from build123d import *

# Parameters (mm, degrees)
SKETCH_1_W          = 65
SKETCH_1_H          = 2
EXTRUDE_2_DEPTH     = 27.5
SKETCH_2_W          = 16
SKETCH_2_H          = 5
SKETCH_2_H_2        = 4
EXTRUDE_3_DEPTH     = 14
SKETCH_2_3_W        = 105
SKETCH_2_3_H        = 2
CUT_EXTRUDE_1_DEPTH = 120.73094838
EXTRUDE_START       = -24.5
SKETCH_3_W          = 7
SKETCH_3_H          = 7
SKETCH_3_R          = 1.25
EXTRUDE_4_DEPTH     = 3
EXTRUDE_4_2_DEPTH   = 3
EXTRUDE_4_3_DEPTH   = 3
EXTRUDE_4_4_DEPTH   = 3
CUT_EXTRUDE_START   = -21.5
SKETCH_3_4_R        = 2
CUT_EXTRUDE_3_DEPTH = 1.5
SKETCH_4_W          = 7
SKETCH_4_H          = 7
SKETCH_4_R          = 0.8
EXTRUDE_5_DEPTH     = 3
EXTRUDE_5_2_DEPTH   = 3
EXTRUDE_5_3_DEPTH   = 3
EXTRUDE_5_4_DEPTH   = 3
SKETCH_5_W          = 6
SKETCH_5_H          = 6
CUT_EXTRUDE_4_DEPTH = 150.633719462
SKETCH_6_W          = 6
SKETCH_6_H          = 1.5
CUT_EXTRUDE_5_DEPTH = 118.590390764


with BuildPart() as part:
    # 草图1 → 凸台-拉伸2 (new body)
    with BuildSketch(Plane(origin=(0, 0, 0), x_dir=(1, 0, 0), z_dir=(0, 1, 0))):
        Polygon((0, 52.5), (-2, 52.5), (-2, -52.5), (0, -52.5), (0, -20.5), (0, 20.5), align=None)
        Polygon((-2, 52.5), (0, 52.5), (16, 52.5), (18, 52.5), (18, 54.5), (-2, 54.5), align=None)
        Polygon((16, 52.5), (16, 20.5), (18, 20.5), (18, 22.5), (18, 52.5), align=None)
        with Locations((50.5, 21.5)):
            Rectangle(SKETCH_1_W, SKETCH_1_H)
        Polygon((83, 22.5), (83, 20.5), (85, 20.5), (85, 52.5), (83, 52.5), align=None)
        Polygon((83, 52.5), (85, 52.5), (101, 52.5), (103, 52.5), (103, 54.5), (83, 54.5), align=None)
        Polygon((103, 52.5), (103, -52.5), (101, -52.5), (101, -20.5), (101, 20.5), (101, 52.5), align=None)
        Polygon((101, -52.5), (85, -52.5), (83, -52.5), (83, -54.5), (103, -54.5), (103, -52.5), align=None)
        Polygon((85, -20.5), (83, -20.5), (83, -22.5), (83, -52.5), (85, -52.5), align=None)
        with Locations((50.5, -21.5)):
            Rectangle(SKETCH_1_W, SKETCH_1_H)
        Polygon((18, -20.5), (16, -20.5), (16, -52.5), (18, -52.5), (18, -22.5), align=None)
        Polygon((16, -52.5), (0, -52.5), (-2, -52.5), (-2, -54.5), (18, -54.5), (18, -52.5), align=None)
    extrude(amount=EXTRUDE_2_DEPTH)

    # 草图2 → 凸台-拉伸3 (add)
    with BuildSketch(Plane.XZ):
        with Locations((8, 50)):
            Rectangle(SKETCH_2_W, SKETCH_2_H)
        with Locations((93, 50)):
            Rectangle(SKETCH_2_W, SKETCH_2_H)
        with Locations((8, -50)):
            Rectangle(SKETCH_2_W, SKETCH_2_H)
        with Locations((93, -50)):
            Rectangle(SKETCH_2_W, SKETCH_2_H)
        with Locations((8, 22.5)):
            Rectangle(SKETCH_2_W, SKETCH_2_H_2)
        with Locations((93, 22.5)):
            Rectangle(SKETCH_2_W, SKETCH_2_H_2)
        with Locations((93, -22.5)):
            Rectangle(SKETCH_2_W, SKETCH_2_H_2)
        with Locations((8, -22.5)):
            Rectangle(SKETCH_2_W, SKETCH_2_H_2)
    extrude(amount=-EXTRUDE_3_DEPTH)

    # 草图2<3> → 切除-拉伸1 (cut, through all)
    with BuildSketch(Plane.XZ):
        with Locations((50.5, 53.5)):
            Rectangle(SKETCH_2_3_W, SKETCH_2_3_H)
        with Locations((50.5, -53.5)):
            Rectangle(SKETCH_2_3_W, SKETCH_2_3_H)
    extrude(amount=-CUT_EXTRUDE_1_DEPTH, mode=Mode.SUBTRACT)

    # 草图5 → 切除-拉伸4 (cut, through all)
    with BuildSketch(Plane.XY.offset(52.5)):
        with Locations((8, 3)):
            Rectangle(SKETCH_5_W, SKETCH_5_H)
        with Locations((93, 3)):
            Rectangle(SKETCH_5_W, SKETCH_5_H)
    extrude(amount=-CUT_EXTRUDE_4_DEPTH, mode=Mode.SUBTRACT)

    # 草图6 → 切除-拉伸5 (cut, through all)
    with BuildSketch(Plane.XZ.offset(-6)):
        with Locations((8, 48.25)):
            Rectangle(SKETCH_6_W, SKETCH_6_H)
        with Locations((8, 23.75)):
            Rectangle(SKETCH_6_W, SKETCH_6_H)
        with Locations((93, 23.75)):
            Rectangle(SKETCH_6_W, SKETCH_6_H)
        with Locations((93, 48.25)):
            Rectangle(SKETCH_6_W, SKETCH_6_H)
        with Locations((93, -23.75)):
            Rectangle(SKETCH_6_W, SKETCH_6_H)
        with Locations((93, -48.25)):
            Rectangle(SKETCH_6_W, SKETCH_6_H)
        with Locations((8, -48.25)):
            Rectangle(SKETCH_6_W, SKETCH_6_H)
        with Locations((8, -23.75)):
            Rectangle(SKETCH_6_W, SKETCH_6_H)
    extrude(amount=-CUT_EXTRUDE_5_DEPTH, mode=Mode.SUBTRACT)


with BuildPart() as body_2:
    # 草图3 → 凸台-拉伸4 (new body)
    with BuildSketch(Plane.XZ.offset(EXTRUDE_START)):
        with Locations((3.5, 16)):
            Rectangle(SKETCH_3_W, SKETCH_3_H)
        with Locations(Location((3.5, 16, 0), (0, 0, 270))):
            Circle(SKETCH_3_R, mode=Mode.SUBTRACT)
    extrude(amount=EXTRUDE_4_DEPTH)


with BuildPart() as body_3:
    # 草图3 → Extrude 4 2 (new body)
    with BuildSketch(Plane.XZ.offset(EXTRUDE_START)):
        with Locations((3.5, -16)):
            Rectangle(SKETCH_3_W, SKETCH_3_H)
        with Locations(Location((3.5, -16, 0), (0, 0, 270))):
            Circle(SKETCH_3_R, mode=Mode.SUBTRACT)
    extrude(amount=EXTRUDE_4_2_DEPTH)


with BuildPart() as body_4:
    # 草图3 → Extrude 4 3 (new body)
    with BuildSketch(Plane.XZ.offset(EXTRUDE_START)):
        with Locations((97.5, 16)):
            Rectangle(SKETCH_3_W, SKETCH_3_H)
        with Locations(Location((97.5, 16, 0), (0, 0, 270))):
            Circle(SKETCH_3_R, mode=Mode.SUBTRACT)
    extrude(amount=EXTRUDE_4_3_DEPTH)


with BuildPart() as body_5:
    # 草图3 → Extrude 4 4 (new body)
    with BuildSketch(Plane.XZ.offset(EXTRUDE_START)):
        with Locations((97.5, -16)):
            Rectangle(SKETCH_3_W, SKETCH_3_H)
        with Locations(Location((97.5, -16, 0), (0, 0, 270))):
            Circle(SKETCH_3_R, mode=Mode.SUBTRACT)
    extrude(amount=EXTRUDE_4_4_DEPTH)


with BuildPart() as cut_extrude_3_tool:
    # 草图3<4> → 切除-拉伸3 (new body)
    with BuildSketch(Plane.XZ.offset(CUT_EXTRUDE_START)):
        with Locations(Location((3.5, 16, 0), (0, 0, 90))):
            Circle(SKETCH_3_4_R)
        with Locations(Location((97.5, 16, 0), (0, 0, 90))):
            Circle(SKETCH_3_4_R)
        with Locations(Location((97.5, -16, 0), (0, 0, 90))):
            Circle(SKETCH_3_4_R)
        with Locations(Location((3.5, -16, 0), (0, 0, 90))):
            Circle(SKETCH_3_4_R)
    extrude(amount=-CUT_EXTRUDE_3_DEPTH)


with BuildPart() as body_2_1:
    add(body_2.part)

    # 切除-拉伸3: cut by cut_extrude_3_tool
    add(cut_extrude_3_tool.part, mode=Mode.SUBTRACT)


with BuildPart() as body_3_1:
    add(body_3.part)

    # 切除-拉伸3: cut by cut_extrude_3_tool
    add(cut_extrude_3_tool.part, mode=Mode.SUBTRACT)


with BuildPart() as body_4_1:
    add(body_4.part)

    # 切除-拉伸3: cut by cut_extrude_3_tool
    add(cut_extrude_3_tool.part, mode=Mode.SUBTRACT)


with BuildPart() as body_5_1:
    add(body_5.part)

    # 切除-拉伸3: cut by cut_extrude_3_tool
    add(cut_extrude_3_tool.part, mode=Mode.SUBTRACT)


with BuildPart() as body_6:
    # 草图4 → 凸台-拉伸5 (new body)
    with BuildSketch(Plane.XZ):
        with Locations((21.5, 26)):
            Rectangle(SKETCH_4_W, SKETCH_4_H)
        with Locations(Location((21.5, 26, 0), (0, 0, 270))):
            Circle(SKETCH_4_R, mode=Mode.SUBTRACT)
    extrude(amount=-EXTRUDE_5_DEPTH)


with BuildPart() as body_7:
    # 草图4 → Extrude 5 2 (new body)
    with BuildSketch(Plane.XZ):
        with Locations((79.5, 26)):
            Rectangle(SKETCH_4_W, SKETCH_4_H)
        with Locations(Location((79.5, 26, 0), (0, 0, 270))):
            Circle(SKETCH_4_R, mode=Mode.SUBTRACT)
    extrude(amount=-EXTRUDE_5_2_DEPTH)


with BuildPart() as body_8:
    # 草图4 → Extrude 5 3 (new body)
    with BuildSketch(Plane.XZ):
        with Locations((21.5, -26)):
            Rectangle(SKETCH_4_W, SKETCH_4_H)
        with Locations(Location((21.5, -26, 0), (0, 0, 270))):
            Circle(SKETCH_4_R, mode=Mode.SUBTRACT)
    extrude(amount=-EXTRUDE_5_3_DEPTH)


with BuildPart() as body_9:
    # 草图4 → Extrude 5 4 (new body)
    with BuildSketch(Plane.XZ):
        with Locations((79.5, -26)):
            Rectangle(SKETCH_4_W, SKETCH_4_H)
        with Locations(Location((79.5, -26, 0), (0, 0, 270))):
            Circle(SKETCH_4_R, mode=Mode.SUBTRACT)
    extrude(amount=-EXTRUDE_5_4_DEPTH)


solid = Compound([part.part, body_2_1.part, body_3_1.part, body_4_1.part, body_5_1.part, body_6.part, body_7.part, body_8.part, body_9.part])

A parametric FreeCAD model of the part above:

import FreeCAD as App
import Part
import Sketcher


def add_polygon(sketch, points):
    """Adds a closed chain of lines whose ends are joined by coincident constraints."""
    first, n = sketch.GeometryCount, len(points)
    for a, b in zip(points, points[1:] + points[:1]):
        sketch.addGeometry(Part.LineSegment(App.Vector(*a, 0), App.Vector(*b, 0)), False)
    for i in range(n):
        sketch.addConstraint(Sketcher.Constraint("Coincident", first + i, 2, first + (i + 1) % n, 1))

doc = App.newDocument("Part")
body = doc.addObject("PartDesign::Body", "Body")

# Sketch on XZ plane
sketch1 = doc.addObject("Sketcher::SketchObject", "Sketch")
body.addObject(sketch1)
sketch1.AttachmentSupport = (doc.XZ_Plane, [""])
sketch1.MapMode = "FlatFace"
add_polygon(sketch1, [(18, 22), (83, 22), (83, 54), (103, 54), (103, -54), (83, -54), (83, -22), (18, -22), (18, -54), (-2, -54), (-2, 54), (18, 54)])  # lines 0-11
add_polygon(sketch1, [(0, 52), (0, -52), (16, -52), (16, -20), (85, -20), (85, -52), (101, -52), (101, 52), (85, 52), (85, 20), (16, 20), (16, 52)])  # lines 12-23
sketch1.addConstraint([
    Sketcher.Constraint("Horizontal", 0),
    Sketcher.Constraint("Vertical", 1),
    Sketcher.Constraint("Horizontal", 2),
    Sketcher.Constraint("Vertical", 3),
    Sketcher.Constraint("Horizontal", 4),
    Sketcher.Constraint("Vertical", 5),
    Sketcher.Constraint("Horizontal", 6),
    Sketcher.Constraint("Vertical", 7),
    Sketcher.Constraint("Horizontal", 8),
    Sketcher.Constraint("Vertical", 9),
    Sketcher.Constraint("Horizontal", 10),
    Sketcher.Constraint("Vertical", 11),
    Sketcher.Constraint("Vertical", 12),
    Sketcher.Constraint("Horizontal", 13),
    Sketcher.Constraint("Vertical", 14),
    Sketcher.Constraint("Horizontal", 15),
    Sketcher.Constraint("Vertical", 16),
    Sketcher.Constraint("Horizontal", 17),
    Sketcher.Constraint("Vertical", 18),
    Sketcher.Constraint("Horizontal", 19),
    Sketcher.Constraint("Vertical", 20),
    Sketcher.Constraint("Horizontal", 21),
    Sketcher.Constraint("Vertical", 22),
    Sketcher.Constraint("Horizontal", 23),
    Sketcher.Constraint("Symmetric", 12, 2, 23, 2, -1, 1),
    Sketcher.Constraint("Symmetric", 1, 2, 4, 2, -1),
    Sketcher.Constraint("Symmetric", 7, 2, 10, 2, -1),
    Sketcher.Constraint("Symmetric", 16, 2, 19, 2, -1),
    Sketcher.Constraint("Symmetric", 14, 2, 21, 2, -1),
    Sketcher.Constraint("Horizontal", 4, 2, 7, 2),
    Sketcher.Constraint("Horizontal", 13, 2, 16, 2),
    Sketcher.Constraint("Equal", 4, 8),
    Sketcher.Constraint("Equal", 13, 17),
    Sketcher.Constraint("Equal", 1, 5),
    Sketcher.Constraint("Equal", 11, 14),
    Sketcher.Constraint("DistanceX", 0, 1, 0, 2, 65.0),
    Sketcher.Constraint("DistanceX", 2, 1, 2, 2, 20.0),
    Sketcher.Constraint("DistanceX", 13, 1, 13, 2, 16.0),
    Sketcher.Constraint("DistanceX", 15, 1, 15, 2, 69.0),
    Sketcher.Constraint("DistanceY", 1, 1, 1, 2, 32.0),
    Sketcher.Constraint("DistanceY", 3, 2, 3, 1, 109.0),
    Sketcher.Constraint("DistanceY", 12, 2, 12, 1, 105.0),
    Sketcher.Constraint("DistanceX", -1, 1, 0, 2, 83.0),
])
pad1 = doc.addObject("PartDesign::Pad", "Pad")
body.addObject(pad1)
pad1.Profile = sketch1
pad1.Length = 27.5
pad1.Reversed = True

# Sketch on XZ plane
sketch2 = doc.addObject("Sketcher::SketchObject", "Sketch001")
body.addObject(sketch2)
sketch2.AttachmentSupport = (doc.XZ_Plane, [""])
sketch2.MapMode = "FlatFace"
add_polygon(sketch2, [(0, 52.5), (0, 47.5), (16, 47.5), (16, 52.5)])  # lines 0-3
add_polygon(sketch2, [(85, 52.5), (85, 47.5), (101, 47.5), (101, 52.5)])  # lines 4-7
add_polygon(sketch2, [(0, -47.5), (0, -52.5), (16, -52.5), (16, -47.5)])  # lines 8-11
add_polygon(sketch2, [(85, -47.5), (85, -52.5), (101, -52.5), (101, -47.5)])  # lines 12-15
add_polygon(sketch2, [(0, 24.5), (0, 20.5), (16, 20.5), (16, 24.5)])  # lines 16-19
add_polygon(sketch2, [(85, 24.5), (85, 20.5), (101, 20.5), (101, 24.5)])  # lines 20-23
add_polygon(sketch2, [(85, -20.5), (85, -24.5), (101, -24.5), (101, -20.5)])  # lines 24-27
add_polygon(sketch2, [(0, -20.5), (0, -24.5), (16, -24.5), (16, -20.5)])  # lines 28-31
sketch2.addConstraint([
    Sketcher.Constraint("Vertical", 0),
    Sketcher.Constraint("Horizontal", 1),
    Sketcher.Constraint("Vertical", 2),
    Sketcher.Constraint("Horizontal", 3),
    Sketcher.Constraint("Vertical", 4),
    Sketcher.Constraint("Horizontal", 5),
    Sketcher.Constraint("Vertical", 6),
    Sketcher.Constraint("Horizontal", 7),
    Sketcher.Constraint("Vertical", 8),
    Sketcher.Constraint("Horizontal", 9),
    Sketcher.Constraint("Vertical", 10),
    Sketcher.Constraint("Horizontal", 11),
    Sketcher.Constraint("Vertical", 12),
    Sketcher.Constraint("Horizontal", 13),
    Sketcher.Constraint("Vertical", 14),
    Sketcher.Constraint("Horizontal", 15),
    Sketcher.Constraint("Vertical", 16),
    Sketcher.Constraint("Horizontal", 17),
    Sketcher.Constraint("Vertical", 18),
    Sketcher.Constraint("Horizontal", 19),
    Sketcher.Constraint("Vertical", 20),
    Sketcher.Constraint("Horizontal", 21),
    Sketcher.Constraint("Vertical", 22),
    Sketcher.Constraint("Horizontal", 23),
    Sketcher.Constraint("Vertical", 24),
    Sketcher.Constraint("Horizontal", 25),
    Sketcher.Constraint("Vertical", 26),
    Sketcher.Constraint("Horizontal", 27),
    Sketcher.Constraint("Vertical", 28),
    Sketcher.Constraint("Horizontal", 29),
    Sketcher.Constraint("Vertical", 30),
    Sketcher.Constraint("Horizontal", 31),
    Sketcher.Constraint("Symmetric", 3, 2, 8, 2, -1, 1),
    Sketcher.Constraint("Symmetric", 19, 2, 28, 2, -1, 1),
    Sketcher.Constraint("Symmetric", 1, 2, 10, 2, -1),
    Sketcher.Constraint("Symmetric", 7, 2, 12, 2, -1),
    Sketcher.Constraint("Symmetric", 5, 2, 14, 2, -1),
    Sketcher.Constraint("Symmetric", 23, 2, 24, 2, -1),
    Sketcher.Constraint("Symmetric", 21, 2, 26, 2, -1),
    Sketcher.Constraint("Symmetric", 17, 2, 30, 2, -1),
    Sketcher.Constraint("PointOnObject", 0, 2, -2),
    Sketcher.Constraint("PointOnObject", 16, 2, -2),
    Sketcher.Constraint("Horizontal", 1, 2, 4, 2),
    Sketcher.Constraint("Horizontal", 3, 2, 6, 2),
    Sketcher.Constraint("Horizontal", 17, 2, 20, 2),
    Sketcher.Constraint("Horizontal", 19, 2, 22, 2),
    Sketcher.Constraint("Vertical", 10, 2, 17, 2),
    Sketcher.Constraint("Vertical", 15, 2, 20, 2),
    Sketcher.Constraint("Vertical", 14, 2, 21, 2),
    Sketcher.Constraint("Equal", 3, 5),
    Sketcher.Constraint("DistanceX", 1, 1, 1, 2, 16.0),
    Sketcher.Constraint("DistanceY", 0, 2, 0, 1, 5.0),
    Sketcher.Constraint("DistanceY", 16, 2, 16, 1, 4.0),
    Sketcher.Constraint("DistanceX", -1, 1, 4, 2, 85.0),
    Sketcher.Constraint("DistanceY", 8, 2, 0, 2, 100.0),
    Sketcher.Constraint("DistanceY", 16, 2, 0, 2, 27.0),
])
pad2 = doc.addObject("PartDesign::Pad", "Pad001")
body.addObject(pad2)
pad2.Profile = sketch2
pad2.Length = 14
pad2.Reversed = True

# Sketch on XZ plane
sketch3 = doc.addObject("Sketcher::SketchObject", "Sketch002")
body.addObject(sketch3)
sketch3.AttachmentSupport = (doc.XZ_Plane, [""])
sketch3.MapMode = "FlatFace"
add_polygon(sketch3, [(-2, 54.5), (-2, 52.5), (103, 52.5), (103, 54.5)])  # lines 0-3
add_polygon(sketch3, [(-2, -52.5), (-2, -54.5), (103, -54.5), (103, -52.5)])  # lines 4-7
sketch3.addConstraint([
    Sketcher.Constraint("Vertical", 0),
    Sketcher.Constraint("Horizontal", 1),
    Sketcher.Constraint("Vertical", 2),
    Sketcher.Constraint("Horizontal", 3),
    Sketcher.Constraint("Vertical", 4),
    Sketcher.Constraint("Horizontal", 5),
    Sketcher.Constraint("Vertical", 6),
    Sketcher.Constraint("Horizontal", 7),
    Sketcher.Constraint("Symmetric", 3, 2, 4, 2, -1),
    Sketcher.Constraint("Symmetric", 1, 2, 6, 2, -1),
    Sketcher.Constraint("DistanceX", 1, 1, 1, 2, 105.0),
    Sketcher.Constraint("DistanceY", 0, 2, 0, 1, 2.0),
    Sketcher.Constraint("DistanceX", 0, 2, -1, 1, 2.0),
    Sketcher.Constraint("DistanceY", 4, 2, 0, 2, 107.0),
])
pocket1 = doc.addObject("PartDesign::Pocket", "Pocket")
body.addObject(pocket1)
pocket1.Profile = sketch3
pocket1.Type = "ThroughAll"

# Sketch on XY plane
sketch4 = doc.addObject("Sketcher::SketchObject", "Sketch003")
body.addObject(sketch4)
sketch4.AttachmentSupport = (doc.XY_Plane, [""])
sketch4.MapMode = "FlatFace"
sketch4.AttachmentOffset = App.Placement(App.Vector(0, 0, 52.5), App.Rotation())
add_polygon(sketch4, [(5, 6), (5, 0), (11, 0), (11, 6)])  # lines 0-3
add_polygon(sketch4, [(90, 6), (90, 0), (96, 0), (96, 6)])  # lines 4-7
sketch4.addConstraint([
    Sketcher.Constraint("Vertical", 0),
    Sketcher.Constraint("Horizontal", 1),
    Sketcher.Constraint("Vertical", 2),
    Sketcher.Constraint("Horizontal", 3),
    Sketcher.Constraint("Vertical", 4),
    Sketcher.Constraint("Horizontal", 5),
    Sketcher.Constraint("Vertical", 6),
    Sketcher.Constraint("Horizontal", 7),
    Sketcher.Constraint("PointOnObject", 0, 2, -1),
    Sketcher.Constraint("PointOnObject", 4, 2, -1),
    Sketcher.Constraint("Horizontal", 3, 2, 6, 2),
    Sketcher.Constraint("Equal", 3, 5),
    Sketcher.Constraint("Equal", 7, 0),
    Sketcher.Constraint("DistanceX", 1, 1, 1, 2, 6.0),
    Sketcher.Constraint("DistanceX", -1, 1, 0, 2, 5.0),
    Sketcher.Constraint("DistanceX", -1, 1, 4, 2, 90.0),
])
pocket2 = doc.addObject("PartDesign::Pocket", "Pocket001")
body.addObject(pocket2)
pocket2.Profile = sketch4
pocket2.Type = "ThroughAll"

# Sketch on XZ plane
sketch5 = doc.addObject("Sketcher::SketchObject", "Sketch004")
body.addObject(sketch5)
sketch5.AttachmentSupport = (doc.XZ_Plane, [""])
sketch5.MapMode = "FlatFace"
sketch5.AttachmentOffset = App.Placement(App.Vector(0, 0, -6), App.Rotation())
add_polygon(sketch5, [(5, 49), (5, 47.5), (11, 47.5), (11, 49)])  # lines 0-3
add_polygon(sketch5, [(5, 24.5), (5, 23), (11, 23), (11, 24.5)])  # lines 4-7
add_polygon(sketch5, [(90, 24.5), (90, 23), (96, 23), (96, 24.5)])  # lines 8-11
add_polygon(sketch5, [(90, 49), (90, 47.5), (96, 47.5), (96, 49)])  # lines 12-15
add_polygon(sketch5, [(90, -23), (90, -24.5), (96, -24.5), (96, -23)])  # lines 16-19
add_polygon(sketch5, [(90, -47.5), (90, -49), (96, -49), (96, -47.5)])  # lines 20-23
add_polygon(sketch5, [(5, -47.5), (5, -49), (11, -49), (11, -47.5)])  # lines 24-27
add_polygon(sketch5, [(5, -23), (5, -24.5), (11, -24.5), (11, -23)])  # lines 28-31
sketch5.addConstraint([
    Sketcher.Constraint("Vertical", 0),
    Sketcher.Constraint("Horizontal", 1),
    Sketcher.Constraint("Vertical", 2),
    Sketcher.Constraint("Horizontal", 3),
    Sketcher.Constraint("Vertical", 4),
    Sketcher.Constraint("Horizontal", 5),
    Sketcher.Constraint("Vertical", 6),
    Sketcher.Constraint("Horizontal", 7),
    Sketcher.Constraint("Vertical", 8),
    Sketcher.Constraint("Horizontal", 9),
    Sketcher.Constraint("Vertical", 10),
    Sketcher.Constraint("Horizontal", 11),
    Sketcher.Constraint("Vertical", 12),
    Sketcher.Constraint("Horizontal", 13),
    Sketcher.Constraint("Vertical", 14),
    Sketcher.Constraint("Horizontal", 15),
    Sketcher.Constraint("Vertical", 16),
    Sketcher.Constraint("Horizontal", 17),
    Sketcher.Constraint("Vertical", 18),
    Sketcher.Constraint("Horizontal", 19),
    Sketcher.Constraint("Vertical", 20),
    Sketcher.Constraint("Horizontal", 21),
    Sketcher.Constraint("Vertical", 22),
    Sketcher.Constraint("Horizontal", 23),
    Sketcher.Constraint("Vertical", 24),
    Sketcher.Constraint("Horizontal", 25),
    Sketcher.Constraint("Vertical", 26),
    Sketcher.Constraint("Horizontal", 27),
    Sketcher.Constraint("Vertical", 28),
    Sketcher.Constraint("Horizontal", 29),
    Sketcher.Constraint("Vertical", 30),
    Sketcher.Constraint("Horizontal", 31),
    Sketcher.Constraint("Symmetric", 11, 2, 16, 2, -1),
    Sketcher.Constraint("Symmetric", 9, 2, 18, 2, -1),
    Sketcher.Constraint("Symmetric", 15, 2, 20, 2, -1),
    Sketcher.Constraint("Symmetric", 13, 2, 22, 2, -1),
    Sketcher.Constraint("Symmetric", 3, 2, 24, 2, -1),
    Sketcher.Constraint("Symmetric", 1, 2, 26, 2, -1),
    Sketcher.Constraint("Symmetric", 7, 2, 28, 2, -1),
    Sketcher.Constraint("Symmetric", 5, 2, 30, 2, -1),
    Sketcher.Constraint("Horizontal", 5, 2, 8, 2),
    Sketcher.Constraint("Horizontal", 7, 2, 10, 2),
    Sketcher.Constraint("Horizontal", 1, 2, 12, 2),
    Sketcher.Constraint("Horizontal", 3, 2, 14, 2),
    Sketcher.Constraint("Vertical", 3, 2, 4, 2),
    Sketcher.Constraint("Vertical", 2, 2, 5, 2),
    Sketcher.Constraint("Vertical", 11, 2, 12, 2),
    Sketcher.Constraint("Vertical", 10, 2, 13, 2),
    Sketcher.Constraint("Equal", 7, 9),
    Sketcher.Constraint("Equal", 2, 4),
    Sketcher.Constraint("DistanceX", 1, 1, 1, 2, 6.0),
    Sketcher.Constraint("DistanceY", 0, 2, 0, 1, 1.5),
    Sketcher.Constraint("DistanceX", -1, 1, 0, 2, 5.0),
    Sketcher.Constraint("DistanceY", -1, 1, 2, 2, 49.0),
    Sketcher.Constraint("DistanceY", -1, 1, 4, 2, 23.0),
    Sketcher.Constraint("DistanceX", -1, 1, 8, 2, 90.0),
])
pocket3 = doc.addObject("PartDesign::Pocket", "Pocket002")
body.addObject(pocket3)
pocket3.Profile = sketch5
pocket3.Type = "ThroughAll"
body2 = doc.addObject("PartDesign::Body", "Body001")

# Sketch on XZ plane
sketch6 = doc.addObject("Sketcher::SketchObject", "Sketch005")
body2.addObject(sketch6)
sketch6.AttachmentSupport = (doc.getObject("XZ_Plane001"), [""])
sketch6.MapMode = "FlatFace"
sketch6.AttachmentOffset = App.Placement(App.Vector(0, 0, -24.5), App.Rotation())
add_polygon(sketch6, [(0, 19.5), (0, 12.5), (7, 12.5), (7, 19.5)])  # lines 0-3
sketch6.addGeometry(Part.Circle(App.Vector(3.5, 16, 0), App.Vector(0, 0, 1), 1.2), False)  # 4
sketch6.addConstraint([
    Sketcher.Constraint("Vertical", 0),
    Sketcher.Constraint("Horizontal", 1),
    Sketcher.Constraint("Vertical", 2),
    Sketcher.Constraint("Horizontal", 3),
    Sketcher.Constraint("PointOnObject", 0, 2, -2),
    Sketcher.Constraint("Equal", 3, 0),
    Sketcher.Constraint("Diameter", 4, 2.5),
    Sketcher.Constraint("DistanceX", 1, 1, 1, 2, 7.0),
    Sketcher.Constraint("DistanceY", -1, 1, 4, 3, 16.0),
    Sketcher.Constraint("DistanceX", -1, 1, 4, 3, 3.5),
    Sketcher.Constraint("DistanceY", -1, 1, 0, 2, 12.5),
])
pad3 = doc.addObject("PartDesign::Pad", "Pad002")
body2.addObject(pad3)
pad3.Profile = sketch6
pad3.Length = 3
body3 = doc.addObject("PartDesign::Body", "Body002")

# Sketch on XZ plane
sketch7 = doc.addObject("Sketcher::SketchObject", "Sketch006")
body3.addObject(sketch7)
sketch7.AttachmentSupport = (doc.getObject("XZ_Plane002"), [""])
sketch7.MapMode = "FlatFace"
sketch7.AttachmentOffset = App.Placement(App.Vector(0, 0, -24.5), App.Rotation())
add_polygon(sketch7, [(0, -12.5), (0, -19.5), (7, -19.5), (7, -12.5)])  # lines 0-3
sketch7.addGeometry(Part.Circle(App.Vector(3.5, -16, 0), App.Vector(0, 0, 1), 1.2), False)  # 4
sketch7.addConstraint([
    Sketcher.Constraint("Vertical", 0),
    Sketcher.Constraint("Horizontal", 1),
    Sketcher.Constraint("Vertical", 2),
    Sketcher.Constraint("Horizontal", 3),
    Sketcher.Constraint("PointOnObject", 0, 2, -2),
    Sketcher.Constraint("Equal", 3, 0),
    Sketcher.Constraint("Diameter", 4, 2.5),
    Sketcher.Constraint("DistanceX", 1, 1, 1, 2, 7.0),
    Sketcher.Constraint("DistanceY", 4, 3, -1, 1, 16.0),
    Sketcher.Constraint("DistanceX", -1, 1, 4, 3, 3.5),
    Sketcher.Constraint("DistanceY", 0, 2, -1, 1, 19.5),
])
pad4 = doc.addObject("PartDesign::Pad", "Pad003")
body3.addObject(pad4)
pad4.Profile = sketch7
pad4.Length = 3
body4 = doc.addObject("PartDesign::Body", "Body003")

# Sketch on XZ plane
sketch8 = doc.addObject("Sketcher::SketchObject", "Sketch007")
body4.addObject(sketch8)
sketch8.AttachmentSupport = (doc.getObject("XZ_Plane003"), [""])
sketch8.MapMode = "FlatFace"
sketch8.AttachmentOffset = App.Placement(App.Vector(0, 0, -24.5), App.Rotation())
add_polygon(sketch8, [(94, 19.5), (94, 12.5), (101, 12.5), (101, 19.5)])  # lines 0-3
sketch8.addGeometry(Part.Circle(App.Vector(97.5, 16, 0), App.Vector(0, 0, 1), 1.2), False)  # 4
sketch8.addConstraint([
    Sketcher.Constraint("Vertical", 0),
    Sketcher.Constraint("Horizontal", 1),
    Sketcher.Constraint("Vertical", 2),
    Sketcher.Constraint("Horizontal", 3),
    Sketcher.Constraint("Equal", 3, 0),
    Sketcher.Constraint("Diameter", 4, 2.5),
    Sketcher.Constraint("DistanceX", 1, 1, 1, 2, 7.0),
    Sketcher.Constraint("DistanceY", -1, 1, 4, 3, 16.0),
    Sketcher.Constraint("DistanceX", -1, 1, 0, 2, 94.0),
    Sketcher.Constraint("DistanceX", -1, 1, 4, 3, 97.5),
    Sketcher.Constraint("DistanceY", -1, 1, 0, 2, 12.5),
])
pad5 = doc.addObject("PartDesign::Pad", "Pad004")
body4.addObject(pad5)
pad5.Profile = sketch8
pad5.Length = 3
body5 = doc.addObject("PartDesign::Body", "Body004")

# Sketch on XZ plane
sketch9 = doc.addObject("Sketcher::SketchObject", "Sketch008")
body5.addObject(sketch9)
sketch9.AttachmentSupport = (doc.getObject("XZ_Plane004"), [""])
sketch9.MapMode = "FlatFace"
sketch9.AttachmentOffset = App.Placement(App.Vector(0, 0, -24.5), App.Rotation())
add_polygon(sketch9, [(94, -12.5), (94, -19.5), (101, -19.5), (101, -12.5)])  # lines 0-3
sketch9.addGeometry(Part.Circle(App.Vector(97.5, -16, 0), App.Vector(0, 0, 1), 1.2), False)  # 4
sketch9.addConstraint([
    Sketcher.Constraint("Vertical", 0),
    Sketcher.Constraint("Horizontal", 1),
    Sketcher.Constraint("Vertical", 2),
    Sketcher.Constraint("Horizontal", 3),
    Sketcher.Constraint("Equal", 3, 0),
    Sketcher.Constraint("Diameter", 4, 2.5),
    Sketcher.Constraint("DistanceX", 1, 1, 1, 2, 7.0),
    Sketcher.Constraint("DistanceY", 4, 3, -1, 1, 16.0),
    Sketcher.Constraint("DistanceX", -1, 1, 0, 2, 94.0),
    Sketcher.Constraint("DistanceX", -1, 1, 4, 3, 97.5),
    Sketcher.Constraint("DistanceY", 0, 2, -1, 1, 19.5),
])
pad6 = doc.addObject("PartDesign::Pad", "Pad005")
body5.addObject(pad6)
pad6.Profile = sketch9
pad6.Length = 3
body6 = doc.addObject("PartDesign::Body", "Body005")
body6.AllowCompound = True

# Sketch on XZ plane
sketch10 = doc.addObject("Sketcher::SketchObject", "Sketch009")
body6.addObject(sketch10)
sketch10.AttachmentSupport = (doc.getObject("XZ_Plane005"), [""])
sketch10.MapMode = "FlatFace"
sketch10.AttachmentOffset = App.Placement(App.Vector(0, 0, -21.5), App.Rotation())
sketch10.addGeometry([
    Part.Circle(App.Vector(3.5, 16, 0), App.Vector(0, 0, 1), 2),
    Part.Circle(App.Vector(97.5, 16, 0), App.Vector(0, 0, 1), 2),
    Part.Circle(App.Vector(97.5, -16, 0), App.Vector(0, 0, 1), 2),
    Part.Circle(App.Vector(3.5, -16, 0), App.Vector(0, 0, 1), 2),
], False)
sketch10.addConstraint([
    Sketcher.Constraint("Equal", 0, 1),
    Sketcher.Constraint("Equal", 1, 2),
    Sketcher.Constraint("Equal", 2, 3),
    Sketcher.Constraint("Symmetric", 1, 3, 2, 3, -1),
    Sketcher.Constraint("Symmetric", 0, 3, 3, 3, -1),
    Sketcher.Constraint("Horizontal", 0, 3, 1, 3),
    Sketcher.Constraint("Diameter", 0, 4.0),
    Sketcher.Constraint("DistanceY", -1, 1, 0, 3, 16.0),
    Sketcher.Constraint("DistanceX", 0, 3, 1, 3, 94.0),
    Sketcher.Constraint("DistanceX", -1, 1, 0, 3, 3.5),
])
pad7 = doc.addObject("PartDesign::Pad", "Pad006")
body6.addObject(pad7)
pad7.Profile = sketch10
pad7.Length = 1.5
pad7.Reversed = True
doc.recompute()

body7 = doc.addObject("PartDesign::Body", "Body006")
body7.BaseFeature = body6
boolean = doc.addObject("PartDesign::Boolean", "Boolean")
body2.addObject(boolean)
boolean.Type = "Cut"
boolean.addObjects([body7])
doc.recompute()

body8 = doc.addObject("PartDesign::Body", "Body007")
body8.BaseFeature = body6
boolean2 = doc.addObject("PartDesign::Boolean", "Boolean001")
body3.addObject(boolean2)
boolean2.Type = "Cut"
boolean2.addObjects([body8])
doc.recompute()

body9 = doc.addObject("PartDesign::Body", "Body008")
body9.BaseFeature = body6
boolean3 = doc.addObject("PartDesign::Boolean", "Boolean002")
body4.addObject(boolean3)
boolean3.Type = "Cut"
boolean3.addObjects([body9])
doc.recompute()

boolean4 = doc.addObject("PartDesign::Boolean", "Boolean003")
body5.addObject(boolean4)
boolean4.Type = "Cut"
boolean4.addObjects([body6])
body10 = doc.addObject("PartDesign::Body", "Body009")

# Sketch on XZ plane
sketch11 = doc.addObject("Sketcher::SketchObject", "Sketch010")
body10.addObject(sketch11)
sketch11.AttachmentSupport = (doc.getObject("XZ_Plane009"), [""])
sketch11.MapMode = "FlatFace"
add_polygon(sketch11, [(18, 29.5), (18, 22.5), (25, 22.5), (25, 29.5)])  # lines 0-3
sketch11.addGeometry(Part.Circle(App.Vector(21.5, 26, 0), App.Vector(0, 0, 1), 0.8), False)  # 4
sketch11.addConstraint([
    Sketcher.Constraint("Vertical", 0),
    Sketcher.Constraint("Horizontal", 1),
    Sketcher.Constraint("Vertical", 2),
    Sketcher.Constraint("Horizontal", 3),
    Sketcher.Constraint("Equal", 3, 0),
    Sketcher.Constraint("Diameter", 4, 1.6),
    Sketcher.Constraint("DistanceX", 1, 1, 1, 2, 7.0),
    Sketcher.Constraint("DistanceY", -1, 1, 4, 3, 26.0),
    Sketcher.Constraint("DistanceX", -1, 1, 0, 2, 18.0),
    Sketcher.Constraint("DistanceX", -1, 1, 4, 3, 21.5),
    Sketcher.Constraint("DistanceY", -1, 1, 0, 2, 22.5),
])
pad8 = doc.addObject("PartDesign::Pad", "Pad007")
body10.addObject(pad8)
pad8.Profile = sketch11
pad8.Length = 3
pad8.Reversed = True
body11 = doc.addObject("PartDesign::Body", "Body010")

# Sketch on XZ plane
sketch12 = doc.addObject("Sketcher::SketchObject", "Sketch011")
body11.addObject(sketch12)
sketch12.AttachmentSupport = (doc.getObject("XZ_Plane010"), [""])
sketch12.MapMode = "FlatFace"
add_polygon(sketch12, [(76, 29.5), (76, 22.5), (83, 22.5), (83, 29.5)])  # lines 0-3
sketch12.addGeometry(Part.Circle(App.Vector(79.5, 26, 0), App.Vector(0, 0, 1), 0.8), False)  # 4
sketch12.addConstraint([
    Sketcher.Constraint("Vertical", 0),
    Sketcher.Constraint("Horizontal", 1),
    Sketcher.Constraint("Vertical", 2),
    Sketcher.Constraint("Horizontal", 3),
    Sketcher.Constraint("Equal", 3, 0),
    Sketcher.Constraint("Diameter", 4, 1.6),
    Sketcher.Constraint("DistanceX", 1, 1, 1, 2, 7.0),
    Sketcher.Constraint("DistanceY", -1, 1, 4, 3, 26.0),
    Sketcher.Constraint("DistanceX", -1, 1, 0, 2, 76.0),
    Sketcher.Constraint("DistanceX", -1, 1, 4, 3, 79.5),
    Sketcher.Constraint("DistanceY", -1, 1, 0, 2, 22.5),
])
pad9 = doc.addObject("PartDesign::Pad", "Pad008")
body11.addObject(pad9)
pad9.Profile = sketch12
pad9.Length = 3
pad9.Reversed = True
body12 = doc.addObject("PartDesign::Body", "Body011")

# Sketch on XZ plane
sketch13 = doc.addObject("Sketcher::SketchObject", "Sketch012")
body12.addObject(sketch13)
sketch13.AttachmentSupport = (doc.getObject("XZ_Plane011"), [""])
sketch13.MapMode = "FlatFace"
add_polygon(sketch13, [(18, -22.5), (18, -29.5), (25, -29.5), (25, -22.5)])  # lines 0-3
sketch13.addGeometry(Part.Circle(App.Vector(21.5, -26, 0), App.Vector(0, 0, 1), 0.8), False)  # 4
sketch13.addConstraint([
    Sketcher.Constraint("Vertical", 0),
    Sketcher.Constraint("Horizontal", 1),
    Sketcher.Constraint("Vertical", 2),
    Sketcher.Constraint("Horizontal", 3),
    Sketcher.Constraint("Equal", 3, 0),
    Sketcher.Constraint("Diameter", 4, 1.6),
    Sketcher.Constraint("DistanceX", 1, 1, 1, 2, 7.0),
    Sketcher.Constraint("DistanceY", 4, 3, -1, 1, 26.0),
    Sketcher.Constraint("DistanceX", -1, 1, 0, 2, 18.0),
    Sketcher.Constraint("DistanceX", -1, 1, 4, 3, 21.5),
    Sketcher.Constraint("DistanceY", 0, 2, -1, 1, 29.5),
])
pad10 = doc.addObject("PartDesign::Pad", "Pad009")
body12.addObject(pad10)
pad10.Profile = sketch13
pad10.Length = 3
pad10.Reversed = True
body13 = doc.addObject("PartDesign::Body", "Body012")

# Sketch on XZ plane
sketch14 = doc.addObject("Sketcher::SketchObject", "Sketch013")
body13.addObject(sketch14)
sketch14.AttachmentSupport = (doc.getObject("XZ_Plane012"), [""])
sketch14.MapMode = "FlatFace"
add_polygon(sketch14, [(76, -22.5), (76, -29.5), (83, -29.5), (83, -22.5)])  # lines 0-3
sketch14.addGeometry(Part.Circle(App.Vector(79.5, -26, 0), App.Vector(0, 0, 1), 0.8), False)  # 4
sketch14.addConstraint([
    Sketcher.Constraint("Vertical", 0),
    Sketcher.Constraint("Horizontal", 1),
    Sketcher.Constraint("Vertical", 2),
    Sketcher.Constraint("Horizontal", 3),
    Sketcher.Constraint("Equal", 3, 0),
    Sketcher.Constraint("Diameter", 4, 1.6),
    Sketcher.Constraint("DistanceX", 1, 1, 1, 2, 7.0),
    Sketcher.Constraint("DistanceY", 4, 3, -1, 1, 26.0),
    Sketcher.Constraint("DistanceX", -1, 1, 0, 2, 76.0),
    Sketcher.Constraint("DistanceX", -1, 1, 4, 3, 79.5),
    Sketcher.Constraint("DistanceY", 0, 2, -1, 1, 29.5),
])
pad11 = doc.addObject("PartDesign::Pad", "Pad010")
body13.addObject(pad11)
pad11.Profile = sketch14
pad11.Length = 3
pad11.Reversed = True

doc.recompute()
